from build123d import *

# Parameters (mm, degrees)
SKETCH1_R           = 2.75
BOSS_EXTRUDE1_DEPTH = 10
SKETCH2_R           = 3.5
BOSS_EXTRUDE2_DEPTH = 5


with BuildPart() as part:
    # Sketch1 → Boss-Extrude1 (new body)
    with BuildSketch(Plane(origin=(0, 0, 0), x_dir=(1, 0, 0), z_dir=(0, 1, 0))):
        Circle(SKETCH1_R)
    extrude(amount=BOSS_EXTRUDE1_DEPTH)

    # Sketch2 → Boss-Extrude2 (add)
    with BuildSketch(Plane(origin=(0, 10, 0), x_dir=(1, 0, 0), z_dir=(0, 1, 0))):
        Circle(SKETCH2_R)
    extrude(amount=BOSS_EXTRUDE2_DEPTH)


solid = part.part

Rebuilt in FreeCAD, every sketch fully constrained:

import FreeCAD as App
import Part
import Sketcher
from FreeCAD import Vector
Q = App.Units.Quantity

doc = App.newDocument("Part")
params = doc.addObject("Spreadsheet::Sheet", "Params")
for row, (alias, value) in enumerate([
    ("sketch1_diameter", "5.5 mm"),
    ("pad1_length", "10 mm"),
    ("sketch2_diameter", "7 mm"),
    ("pad2_length", "5 mm"),
], start=1):
    params.set(f"A{row}", alias)
    params.set(f"B{row}", "=" + value)
    params.setAlias(f"B{row}", alias)

body = doc.addObject("PartDesign::Body", "Body")

sketch1 = body.newObject("Sketcher::SketchObject", "Sketch")
sketch1.AttachmentSupport = (doc.getObject("XZ_Plane"), [""])
sketch1.MapMode = "FlatFace"
sketch1.addGeometry(Part.Circle(Vector(0, 0, 0), Vector(0, 0, 1), 2.8), False)
sketch1.addConstraint([
    Sketcher.Constraint("Coincident", 0, 3, -1, 1),
    Sketcher.Constraint("Diameter", 0, Q("5.5 mm")),
])
sketch1.setExpression("Constraints[1]", "Params.sketch1_diameter")
pad1 = body.newObject("PartDesign::Pad", "Pad")
pad1.Profile = sketch1
pad1.setExpression("Length", "Params.pad1_length")
pad1.Reversed = True

sketch2 = body.newObject("Sketcher::SketchObject", "Sketch001")
sketch2.AttachmentSupport = (doc.getObject("XZ_Plane"), [""])
sketch2.MapMode = "FlatFace"
sketch2.AttachmentOffset = App.Placement(Vector(0, 0, -10), App.Rotation())
sketch2.addGeometry(Part.Circle(Vector(0, 0, 0), Vector(0, 0, 1), 3.5), False)
sketch2.addConstraint([
    Sketcher.Constraint("Coincident", 0, 3, -1, 1),
    Sketcher.Constraint("Diameter", 0, Q("7 mm")),
])
sketch2.setExpression("Constraints[1]", "Params.sketch2_diameter")
pad2 = body.newObject("PartDesign::Pad", "Pad001")
pad2.Profile = sketch2
pad2.setExpression("Length", "Params.pad2_length")
pad2.Reversed = True

doc.recompute()
